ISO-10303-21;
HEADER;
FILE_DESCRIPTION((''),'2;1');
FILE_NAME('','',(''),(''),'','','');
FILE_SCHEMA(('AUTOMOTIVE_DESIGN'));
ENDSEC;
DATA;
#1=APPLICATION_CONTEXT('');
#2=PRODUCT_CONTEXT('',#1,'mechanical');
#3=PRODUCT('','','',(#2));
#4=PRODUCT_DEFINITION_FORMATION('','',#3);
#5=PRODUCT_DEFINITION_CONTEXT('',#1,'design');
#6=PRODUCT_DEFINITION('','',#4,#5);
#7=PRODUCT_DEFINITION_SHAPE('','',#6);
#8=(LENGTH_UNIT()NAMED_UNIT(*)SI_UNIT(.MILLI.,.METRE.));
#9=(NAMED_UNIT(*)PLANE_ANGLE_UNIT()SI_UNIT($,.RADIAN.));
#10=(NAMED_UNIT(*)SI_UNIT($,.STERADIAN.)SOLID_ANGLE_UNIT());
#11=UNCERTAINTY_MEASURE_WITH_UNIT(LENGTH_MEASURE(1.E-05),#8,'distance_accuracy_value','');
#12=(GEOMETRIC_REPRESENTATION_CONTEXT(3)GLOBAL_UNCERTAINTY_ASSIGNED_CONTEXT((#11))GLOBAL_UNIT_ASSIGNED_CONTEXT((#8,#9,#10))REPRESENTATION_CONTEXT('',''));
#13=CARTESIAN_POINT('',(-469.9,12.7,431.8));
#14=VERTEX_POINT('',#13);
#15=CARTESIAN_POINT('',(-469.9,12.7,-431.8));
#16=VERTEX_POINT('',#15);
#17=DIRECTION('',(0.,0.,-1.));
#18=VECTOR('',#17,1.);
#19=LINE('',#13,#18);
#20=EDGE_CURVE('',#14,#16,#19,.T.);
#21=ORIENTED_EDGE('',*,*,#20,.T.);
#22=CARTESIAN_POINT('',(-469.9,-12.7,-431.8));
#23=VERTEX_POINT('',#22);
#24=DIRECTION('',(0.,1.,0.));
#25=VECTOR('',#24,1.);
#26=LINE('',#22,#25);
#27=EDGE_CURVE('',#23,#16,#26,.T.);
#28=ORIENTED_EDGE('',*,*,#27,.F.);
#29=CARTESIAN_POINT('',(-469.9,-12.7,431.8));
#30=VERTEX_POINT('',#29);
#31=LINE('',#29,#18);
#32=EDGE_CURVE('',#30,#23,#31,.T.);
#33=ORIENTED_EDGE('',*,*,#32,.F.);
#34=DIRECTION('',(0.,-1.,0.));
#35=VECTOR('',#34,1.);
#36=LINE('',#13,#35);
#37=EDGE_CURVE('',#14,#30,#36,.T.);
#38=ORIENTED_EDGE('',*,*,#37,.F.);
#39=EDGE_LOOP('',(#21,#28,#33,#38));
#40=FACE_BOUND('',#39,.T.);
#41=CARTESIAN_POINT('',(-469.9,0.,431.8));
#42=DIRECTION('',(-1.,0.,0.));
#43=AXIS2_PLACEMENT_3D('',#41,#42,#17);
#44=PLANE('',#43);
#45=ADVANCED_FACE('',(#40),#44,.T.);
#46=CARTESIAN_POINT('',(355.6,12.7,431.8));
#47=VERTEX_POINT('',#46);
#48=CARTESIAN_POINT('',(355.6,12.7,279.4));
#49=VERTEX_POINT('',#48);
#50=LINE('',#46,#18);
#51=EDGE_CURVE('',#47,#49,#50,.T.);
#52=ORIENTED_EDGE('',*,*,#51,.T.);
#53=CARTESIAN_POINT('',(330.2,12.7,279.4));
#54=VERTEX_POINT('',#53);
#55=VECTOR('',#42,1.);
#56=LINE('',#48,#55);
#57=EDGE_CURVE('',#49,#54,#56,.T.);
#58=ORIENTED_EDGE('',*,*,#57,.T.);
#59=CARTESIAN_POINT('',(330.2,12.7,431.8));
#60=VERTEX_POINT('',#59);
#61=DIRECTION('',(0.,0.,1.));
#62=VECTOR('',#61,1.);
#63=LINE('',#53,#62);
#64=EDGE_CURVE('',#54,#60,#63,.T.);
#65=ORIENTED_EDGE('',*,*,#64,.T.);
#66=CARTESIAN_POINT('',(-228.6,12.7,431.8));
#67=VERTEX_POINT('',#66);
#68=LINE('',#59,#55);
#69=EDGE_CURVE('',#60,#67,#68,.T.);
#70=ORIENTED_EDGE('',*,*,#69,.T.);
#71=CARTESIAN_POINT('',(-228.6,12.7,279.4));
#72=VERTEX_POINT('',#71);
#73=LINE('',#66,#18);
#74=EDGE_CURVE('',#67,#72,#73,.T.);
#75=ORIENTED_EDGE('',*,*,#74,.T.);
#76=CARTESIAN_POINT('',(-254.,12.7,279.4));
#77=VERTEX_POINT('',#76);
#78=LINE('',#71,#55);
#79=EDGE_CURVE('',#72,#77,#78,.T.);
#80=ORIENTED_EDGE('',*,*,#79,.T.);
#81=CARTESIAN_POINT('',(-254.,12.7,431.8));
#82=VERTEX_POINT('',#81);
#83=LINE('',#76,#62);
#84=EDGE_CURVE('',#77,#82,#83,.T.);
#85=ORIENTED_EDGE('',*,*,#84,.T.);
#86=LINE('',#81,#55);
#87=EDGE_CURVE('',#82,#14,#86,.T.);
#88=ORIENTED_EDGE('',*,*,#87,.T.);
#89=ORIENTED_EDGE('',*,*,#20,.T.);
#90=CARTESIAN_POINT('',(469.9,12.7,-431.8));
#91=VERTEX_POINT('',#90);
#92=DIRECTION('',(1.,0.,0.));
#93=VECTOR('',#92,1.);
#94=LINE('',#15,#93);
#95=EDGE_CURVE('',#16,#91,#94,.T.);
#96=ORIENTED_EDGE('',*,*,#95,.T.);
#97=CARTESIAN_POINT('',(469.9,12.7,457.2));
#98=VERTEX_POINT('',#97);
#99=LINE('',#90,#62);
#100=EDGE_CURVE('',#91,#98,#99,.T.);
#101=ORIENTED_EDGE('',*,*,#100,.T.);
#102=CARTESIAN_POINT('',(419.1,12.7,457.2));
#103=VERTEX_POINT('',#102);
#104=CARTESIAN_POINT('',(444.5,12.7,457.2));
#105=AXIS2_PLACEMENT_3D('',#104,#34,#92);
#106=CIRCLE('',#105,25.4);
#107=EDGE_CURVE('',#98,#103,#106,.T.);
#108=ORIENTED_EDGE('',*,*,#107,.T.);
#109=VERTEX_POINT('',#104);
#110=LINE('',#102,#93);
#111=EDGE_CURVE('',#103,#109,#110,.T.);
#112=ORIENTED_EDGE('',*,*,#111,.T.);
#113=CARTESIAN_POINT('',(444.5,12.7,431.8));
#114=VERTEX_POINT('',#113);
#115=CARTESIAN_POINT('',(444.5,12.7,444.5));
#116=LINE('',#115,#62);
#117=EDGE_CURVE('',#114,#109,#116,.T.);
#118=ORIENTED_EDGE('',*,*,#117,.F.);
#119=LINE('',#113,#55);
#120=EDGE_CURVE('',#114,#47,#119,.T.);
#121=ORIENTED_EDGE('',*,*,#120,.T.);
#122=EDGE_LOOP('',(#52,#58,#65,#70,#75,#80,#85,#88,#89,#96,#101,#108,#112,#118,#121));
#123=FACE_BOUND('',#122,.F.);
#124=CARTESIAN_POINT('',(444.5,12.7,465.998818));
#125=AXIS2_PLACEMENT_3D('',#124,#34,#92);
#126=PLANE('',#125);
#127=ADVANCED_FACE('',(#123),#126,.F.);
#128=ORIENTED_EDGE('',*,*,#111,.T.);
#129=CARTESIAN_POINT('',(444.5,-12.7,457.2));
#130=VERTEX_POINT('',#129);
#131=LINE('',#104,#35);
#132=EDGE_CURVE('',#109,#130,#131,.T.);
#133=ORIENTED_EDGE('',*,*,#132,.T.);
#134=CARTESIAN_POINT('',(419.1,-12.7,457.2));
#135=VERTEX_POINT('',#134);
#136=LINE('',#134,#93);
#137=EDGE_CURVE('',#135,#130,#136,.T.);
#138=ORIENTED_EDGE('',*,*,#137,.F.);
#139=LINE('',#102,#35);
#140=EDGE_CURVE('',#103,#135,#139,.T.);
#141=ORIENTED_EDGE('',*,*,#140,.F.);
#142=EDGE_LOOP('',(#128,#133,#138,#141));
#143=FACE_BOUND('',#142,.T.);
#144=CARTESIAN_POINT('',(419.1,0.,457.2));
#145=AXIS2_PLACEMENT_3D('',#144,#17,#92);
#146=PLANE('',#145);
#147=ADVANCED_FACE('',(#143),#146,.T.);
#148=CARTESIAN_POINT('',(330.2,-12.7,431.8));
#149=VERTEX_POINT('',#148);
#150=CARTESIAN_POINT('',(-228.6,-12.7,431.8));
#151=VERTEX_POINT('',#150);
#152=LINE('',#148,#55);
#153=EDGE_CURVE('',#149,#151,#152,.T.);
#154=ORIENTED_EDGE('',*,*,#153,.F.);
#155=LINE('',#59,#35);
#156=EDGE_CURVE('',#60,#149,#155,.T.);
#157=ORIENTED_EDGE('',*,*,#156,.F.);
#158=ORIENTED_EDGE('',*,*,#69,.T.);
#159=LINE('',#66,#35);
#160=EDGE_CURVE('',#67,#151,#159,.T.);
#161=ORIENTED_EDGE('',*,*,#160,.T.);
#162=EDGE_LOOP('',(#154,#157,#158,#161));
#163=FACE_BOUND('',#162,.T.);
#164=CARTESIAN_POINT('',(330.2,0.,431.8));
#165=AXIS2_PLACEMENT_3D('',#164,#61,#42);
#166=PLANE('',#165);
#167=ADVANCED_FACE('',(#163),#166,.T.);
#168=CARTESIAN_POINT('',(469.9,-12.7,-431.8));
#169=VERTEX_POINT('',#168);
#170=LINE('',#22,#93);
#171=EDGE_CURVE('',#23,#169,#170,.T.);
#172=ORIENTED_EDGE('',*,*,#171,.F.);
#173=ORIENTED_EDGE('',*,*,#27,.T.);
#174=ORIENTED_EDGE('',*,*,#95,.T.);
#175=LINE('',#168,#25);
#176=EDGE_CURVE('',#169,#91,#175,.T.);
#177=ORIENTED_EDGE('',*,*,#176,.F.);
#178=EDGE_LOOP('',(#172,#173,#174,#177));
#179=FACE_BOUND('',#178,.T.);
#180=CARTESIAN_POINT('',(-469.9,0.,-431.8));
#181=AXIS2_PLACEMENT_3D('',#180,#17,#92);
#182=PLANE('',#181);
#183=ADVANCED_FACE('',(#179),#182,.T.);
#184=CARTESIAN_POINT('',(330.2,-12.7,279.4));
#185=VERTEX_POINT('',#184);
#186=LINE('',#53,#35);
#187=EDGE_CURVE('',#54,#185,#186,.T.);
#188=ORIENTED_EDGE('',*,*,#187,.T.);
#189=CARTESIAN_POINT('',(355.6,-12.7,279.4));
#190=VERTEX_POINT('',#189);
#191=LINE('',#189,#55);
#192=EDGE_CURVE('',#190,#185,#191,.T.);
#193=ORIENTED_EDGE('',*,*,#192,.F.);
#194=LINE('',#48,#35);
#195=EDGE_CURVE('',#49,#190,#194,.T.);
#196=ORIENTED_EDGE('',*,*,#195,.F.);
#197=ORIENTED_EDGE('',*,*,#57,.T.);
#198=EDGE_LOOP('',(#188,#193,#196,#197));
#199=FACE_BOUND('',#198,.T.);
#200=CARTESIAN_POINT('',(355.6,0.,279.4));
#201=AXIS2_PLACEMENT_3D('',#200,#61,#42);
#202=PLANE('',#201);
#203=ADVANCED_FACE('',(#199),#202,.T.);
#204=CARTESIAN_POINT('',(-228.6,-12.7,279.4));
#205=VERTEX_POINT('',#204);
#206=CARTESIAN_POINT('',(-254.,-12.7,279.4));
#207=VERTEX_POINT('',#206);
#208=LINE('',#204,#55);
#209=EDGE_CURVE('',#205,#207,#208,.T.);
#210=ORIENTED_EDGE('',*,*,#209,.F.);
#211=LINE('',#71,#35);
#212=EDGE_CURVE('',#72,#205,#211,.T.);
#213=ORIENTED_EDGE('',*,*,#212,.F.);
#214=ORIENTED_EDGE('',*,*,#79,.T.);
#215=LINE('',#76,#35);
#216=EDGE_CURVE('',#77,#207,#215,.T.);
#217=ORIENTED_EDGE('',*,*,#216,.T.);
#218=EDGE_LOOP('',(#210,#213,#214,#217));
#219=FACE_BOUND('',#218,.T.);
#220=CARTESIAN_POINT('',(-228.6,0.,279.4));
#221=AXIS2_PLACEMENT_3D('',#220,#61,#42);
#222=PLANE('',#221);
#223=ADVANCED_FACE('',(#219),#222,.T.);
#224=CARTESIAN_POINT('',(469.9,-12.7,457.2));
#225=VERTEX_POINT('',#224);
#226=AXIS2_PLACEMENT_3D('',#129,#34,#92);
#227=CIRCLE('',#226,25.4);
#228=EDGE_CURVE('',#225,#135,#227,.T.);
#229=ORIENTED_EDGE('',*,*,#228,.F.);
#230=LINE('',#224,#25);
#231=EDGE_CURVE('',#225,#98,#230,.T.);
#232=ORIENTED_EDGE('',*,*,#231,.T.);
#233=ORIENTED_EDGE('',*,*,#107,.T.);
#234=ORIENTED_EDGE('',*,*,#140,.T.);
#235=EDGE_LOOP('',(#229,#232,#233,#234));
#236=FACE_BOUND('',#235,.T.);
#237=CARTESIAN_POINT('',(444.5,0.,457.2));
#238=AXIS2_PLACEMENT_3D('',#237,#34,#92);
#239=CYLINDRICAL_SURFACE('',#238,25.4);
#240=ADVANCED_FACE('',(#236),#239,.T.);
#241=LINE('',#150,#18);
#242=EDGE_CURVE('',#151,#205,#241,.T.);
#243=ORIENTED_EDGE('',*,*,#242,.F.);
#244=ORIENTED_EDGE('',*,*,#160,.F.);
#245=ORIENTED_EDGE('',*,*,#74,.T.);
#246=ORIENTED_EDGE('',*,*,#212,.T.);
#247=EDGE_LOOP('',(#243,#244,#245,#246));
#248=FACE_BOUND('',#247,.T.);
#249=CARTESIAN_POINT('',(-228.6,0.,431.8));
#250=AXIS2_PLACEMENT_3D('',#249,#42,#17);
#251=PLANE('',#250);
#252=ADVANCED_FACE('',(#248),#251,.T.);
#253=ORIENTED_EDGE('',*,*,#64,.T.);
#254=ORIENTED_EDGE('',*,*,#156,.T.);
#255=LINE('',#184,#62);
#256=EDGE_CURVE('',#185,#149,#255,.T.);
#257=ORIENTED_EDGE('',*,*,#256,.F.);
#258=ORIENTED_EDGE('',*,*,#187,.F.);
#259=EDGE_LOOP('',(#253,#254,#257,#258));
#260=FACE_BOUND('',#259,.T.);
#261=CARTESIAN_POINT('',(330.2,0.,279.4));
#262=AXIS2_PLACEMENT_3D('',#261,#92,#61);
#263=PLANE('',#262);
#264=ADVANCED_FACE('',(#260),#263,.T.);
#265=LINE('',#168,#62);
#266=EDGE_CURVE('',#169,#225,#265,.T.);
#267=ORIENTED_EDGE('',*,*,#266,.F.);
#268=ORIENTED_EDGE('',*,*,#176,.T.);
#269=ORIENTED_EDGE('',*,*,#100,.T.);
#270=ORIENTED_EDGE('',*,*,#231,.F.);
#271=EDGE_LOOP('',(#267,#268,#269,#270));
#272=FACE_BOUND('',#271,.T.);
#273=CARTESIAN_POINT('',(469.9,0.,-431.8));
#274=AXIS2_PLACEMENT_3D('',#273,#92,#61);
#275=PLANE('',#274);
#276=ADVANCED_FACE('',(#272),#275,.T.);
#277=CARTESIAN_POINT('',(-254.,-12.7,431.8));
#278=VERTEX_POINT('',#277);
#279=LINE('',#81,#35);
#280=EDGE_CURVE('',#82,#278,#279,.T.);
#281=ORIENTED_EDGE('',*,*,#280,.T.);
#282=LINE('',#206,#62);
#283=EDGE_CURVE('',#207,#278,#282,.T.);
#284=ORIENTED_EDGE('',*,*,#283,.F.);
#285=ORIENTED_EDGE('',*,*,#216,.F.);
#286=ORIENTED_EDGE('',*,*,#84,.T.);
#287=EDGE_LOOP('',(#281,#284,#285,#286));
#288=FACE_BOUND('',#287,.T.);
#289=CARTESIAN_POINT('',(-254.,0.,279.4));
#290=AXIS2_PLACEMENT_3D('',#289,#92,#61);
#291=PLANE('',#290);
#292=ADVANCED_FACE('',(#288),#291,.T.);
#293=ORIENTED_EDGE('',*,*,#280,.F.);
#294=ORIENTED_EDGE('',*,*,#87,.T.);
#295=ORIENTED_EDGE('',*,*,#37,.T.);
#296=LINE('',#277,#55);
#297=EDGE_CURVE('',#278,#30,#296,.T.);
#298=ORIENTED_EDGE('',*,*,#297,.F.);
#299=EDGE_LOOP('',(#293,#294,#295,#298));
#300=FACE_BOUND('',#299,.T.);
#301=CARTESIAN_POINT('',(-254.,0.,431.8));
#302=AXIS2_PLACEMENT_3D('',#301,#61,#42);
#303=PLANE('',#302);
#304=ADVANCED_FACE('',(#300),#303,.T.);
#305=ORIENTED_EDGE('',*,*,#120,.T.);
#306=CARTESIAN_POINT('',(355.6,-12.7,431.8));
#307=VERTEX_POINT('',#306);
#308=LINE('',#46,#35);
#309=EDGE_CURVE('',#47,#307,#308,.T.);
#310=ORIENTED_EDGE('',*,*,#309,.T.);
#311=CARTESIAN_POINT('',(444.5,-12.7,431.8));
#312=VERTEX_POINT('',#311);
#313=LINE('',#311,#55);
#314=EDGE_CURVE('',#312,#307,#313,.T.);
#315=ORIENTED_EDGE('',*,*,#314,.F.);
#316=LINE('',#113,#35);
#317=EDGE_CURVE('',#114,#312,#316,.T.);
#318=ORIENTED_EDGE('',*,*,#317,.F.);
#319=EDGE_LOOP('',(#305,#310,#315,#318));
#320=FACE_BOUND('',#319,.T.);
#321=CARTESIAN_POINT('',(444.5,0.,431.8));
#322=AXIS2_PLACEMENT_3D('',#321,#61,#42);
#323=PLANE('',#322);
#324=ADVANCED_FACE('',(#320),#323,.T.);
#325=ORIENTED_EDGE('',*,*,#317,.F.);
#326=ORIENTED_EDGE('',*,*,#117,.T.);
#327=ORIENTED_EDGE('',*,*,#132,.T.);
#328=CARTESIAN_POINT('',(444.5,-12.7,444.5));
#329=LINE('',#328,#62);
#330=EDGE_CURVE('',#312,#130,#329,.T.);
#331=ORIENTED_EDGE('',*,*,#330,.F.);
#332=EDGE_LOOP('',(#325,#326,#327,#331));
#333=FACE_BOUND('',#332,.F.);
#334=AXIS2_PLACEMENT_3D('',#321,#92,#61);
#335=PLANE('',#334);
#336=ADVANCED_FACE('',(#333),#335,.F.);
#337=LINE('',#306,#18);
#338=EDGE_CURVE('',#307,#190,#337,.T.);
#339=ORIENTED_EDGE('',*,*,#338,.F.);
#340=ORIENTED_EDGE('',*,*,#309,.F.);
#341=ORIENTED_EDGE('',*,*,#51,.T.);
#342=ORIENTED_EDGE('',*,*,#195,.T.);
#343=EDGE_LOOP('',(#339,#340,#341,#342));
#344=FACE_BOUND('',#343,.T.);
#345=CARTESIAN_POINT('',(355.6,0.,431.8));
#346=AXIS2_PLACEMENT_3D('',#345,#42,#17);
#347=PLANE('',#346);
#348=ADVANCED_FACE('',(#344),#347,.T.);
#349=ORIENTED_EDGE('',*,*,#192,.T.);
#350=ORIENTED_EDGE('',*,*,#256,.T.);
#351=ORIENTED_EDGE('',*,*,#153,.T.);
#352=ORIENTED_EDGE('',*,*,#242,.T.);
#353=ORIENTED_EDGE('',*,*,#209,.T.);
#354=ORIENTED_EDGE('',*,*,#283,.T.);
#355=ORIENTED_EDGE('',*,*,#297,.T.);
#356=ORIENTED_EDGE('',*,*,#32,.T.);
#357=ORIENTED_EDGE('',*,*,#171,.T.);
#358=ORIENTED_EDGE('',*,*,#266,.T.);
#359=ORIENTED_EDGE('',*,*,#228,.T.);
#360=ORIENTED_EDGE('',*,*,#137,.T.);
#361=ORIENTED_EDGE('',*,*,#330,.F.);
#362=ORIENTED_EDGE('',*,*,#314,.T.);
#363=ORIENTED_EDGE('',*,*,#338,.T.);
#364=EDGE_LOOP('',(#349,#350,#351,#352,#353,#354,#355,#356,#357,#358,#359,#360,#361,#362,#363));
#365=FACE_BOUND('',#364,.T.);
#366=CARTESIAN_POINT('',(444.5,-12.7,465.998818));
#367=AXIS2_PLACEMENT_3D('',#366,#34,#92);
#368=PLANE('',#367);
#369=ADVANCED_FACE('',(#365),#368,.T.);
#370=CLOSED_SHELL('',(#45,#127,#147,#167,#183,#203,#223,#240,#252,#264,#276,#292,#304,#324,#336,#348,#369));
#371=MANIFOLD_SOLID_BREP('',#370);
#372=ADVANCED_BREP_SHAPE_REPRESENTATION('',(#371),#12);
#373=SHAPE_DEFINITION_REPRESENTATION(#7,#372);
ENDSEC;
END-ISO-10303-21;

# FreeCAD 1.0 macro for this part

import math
import FreeCAD as App
import Part
import Sketcher
from FreeCAD import Vector
Q = App.Units.Quantity

doc = App.newDocument("Part")
params = doc.addObject("Spreadsheet::Sheet", "Params")
for row, (alias, value) in enumerate([
    ("sketch1_radius", "1 in"),
    ("sketch1_width", "22 in"),
    ("sketch1_width2", "37 in"),
    ("sketch1_height", "6 in"),
    ("sketch1_height2", "34 in"),
    ("pad1_length", "1 in"),
], start=1):
    params.set(f"A{row}", alias)
    params.set(f"B{row}", "=" + value)
    params.setAlias(f"B{row}", alias)

body = doc.addObject("PartDesign::Body", "Body")

# Sketch on XZ plane
sketch1 = body.newObject("Sketcher::SketchObject", "Sketch")
sketch1.AttachmentSupport = (doc.getObject("XZ_Plane"), [""])
sketch1.MapMode = "FlatFace"
sketch1.addGeometry([
    Part.ArcOfCircle(Part.Circle(Vector(444, 457, 0), Vector(0, 0, 1), 25), math.radians(0), math.radians(180)),  # 0
    Part.LineSegment(Vector(419, 457, 0), Vector(444, 457, 0)),  # 1
    Part.LineSegment(Vector(444, 457, 0), Vector(444, 432, 0)),  # 2
    Part.LineSegment(Vector(444, 432, 0), Vector(356, 432, 0)),  # 3
    Part.LineSegment(Vector(356, 432, 0), Vector(356, 279, 0)),  # 4
    Part.LineSegment(Vector(356, 279, 0), Vector(330, 279, 0)),  # 5
    Part.LineSegment(Vector(330, 279, 0), Vector(330, 432, 0)),  # 6
    Part.LineSegment(Vector(330, 432, 0), Vector(-229, 432, 0)),  # 7
    Part.LineSegment(Vector(-229, 432, 0), Vector(-229, 279, 0)),  # 8
    Part.LineSegment(Vector(-229, 279, 0), Vector(-254, 279, 0)),  # 9
    Part.LineSegment(Vector(-254, 279, 0), Vector(-254, 432, 0)),  # 10
    Part.LineSegment(Vector(-254, 432, 0), Vector(-470, 432, 0)),  # 11
    Part.LineSegment(Vector(-470, 432, 0), Vector(-470, -432, 0)),  # 12
    Part.LineSegment(Vector(-470, -432, 0), Vector(470, -432, 0)),  # 13
    Part.LineSegment(Vector(470, -432, 0), Vector(470, 457, 0)),  # 14
], False)
sketch1.addConstraint([
    Sketcher.Constraint("Coincident", 0, 2, 1, 1),
    Sketcher.Constraint("Coincident", 1, 2, 2, 1),
    Sketcher.Constraint("Coincident", 2, 2, 3, 1),
    Sketcher.Constraint("Coincident", 3, 2, 4, 1),
    Sketcher.Constraint("Coincident", 4, 2, 5, 1),
    Sketcher.Constraint("Coincident", 5, 2, 6, 1),
    Sketcher.Constraint("Coincident", 6, 2, 7, 1),
    Sketcher.Constraint("Coincident", 7, 2, 8, 1),
    Sketcher.Constraint("Coincident", 8, 2, 9, 1),
    Sketcher.Constraint("Coincident", 9, 2, 10, 1),
    Sketcher.Constraint("Coincident", 10, 2, 11, 1),
    Sketcher.Constraint("Coincident", 11, 2, 12, 1),
    Sketcher.Constraint("Coincident", 12, 2, 13, 1),
    Sketcher.Constraint("Coincident", 13, 2, 14, 1),
    Sketcher.Constraint("Tangent", 14, 2, 0, 1),
    Sketcher.Constraint("Horizontal", 1),
    Sketcher.Constraint("Vertical", 2),
    Sketcher.Constraint("Horizontal", 3),
    Sketcher.Constraint("Vertical", 4),
    Sketcher.Constraint("Horizontal", 5),
    Sketcher.Constraint("Vertical", 6),
    Sketcher.Constraint("Horizontal", 7),
    Sketcher.Constraint("Vertical", 8),
    Sketcher.Constraint("Horizontal", 9),
    Sketcher.Constraint("Vertical", 10),
    Sketcher.Constraint("Horizontal", 11),
    Sketcher.Constraint("Vertical", 12),
    Sketcher.Constraint("Horizontal", 13),
    Sketcher.Constraint("Vertical", 14),
    Sketcher.Constraint("Coincident", 1, 2, 0, 3),
    Sketcher.Constraint("Symmetric", 11, 2, 13, 2, -1, 1),
    Sketcher.Constraint("Horizontal", 3, 2, 6, 2),
    Sketcher.Constraint("Horizontal", 5, 2, 8, 2),
    Sketcher.Constraint("Horizontal", 7, 2, 10, 2),
    Sketcher.Constraint("Equal", 1, 5),
    Sketcher.Constraint("Equal", 5, 9),
    Sketcher.Constraint("Equal", 9, 2),
    Sketcher.Constraint("Radius", 0, Q("1 in")),
    Sketcher.Constraint("DistanceX", 7, 2, 7, 1, Q("22 in")),
    Sketcher.Constraint("DistanceX", 13, 1, 13, 2, Q("37 in")),
    Sketcher.Constraint("DistanceY", 4, 2, 4, 1, Q("6 in")),
    Sketcher.Constraint("DistanceY", 12, 2, 12, 1, Q("34 in")),
    Sketcher.Constraint("DistanceX", 3, 2, 3, 1, Q("3.5 in")),
])
sketch1.setExpression("Constraints[37]", "Params.sketch1_radius")
sketch1.setExpression("Constraints[38]", "Params.sketch1_width")
sketch1.setExpression("Constraints[39]", "Params.sketch1_width2")
sketch1.setExpression("Constraints[40]", "Params.sketch1_height")
sketch1.setExpression("Constraints[41]", "Params.sketch1_height2")
pad1 = body.newObject("PartDesign::Pad", "Pad")
pad1.Profile = sketch1
pad1.setExpression("Length", "Params.pad1_length")
pad1.Midplane = True

doc.recompute()
